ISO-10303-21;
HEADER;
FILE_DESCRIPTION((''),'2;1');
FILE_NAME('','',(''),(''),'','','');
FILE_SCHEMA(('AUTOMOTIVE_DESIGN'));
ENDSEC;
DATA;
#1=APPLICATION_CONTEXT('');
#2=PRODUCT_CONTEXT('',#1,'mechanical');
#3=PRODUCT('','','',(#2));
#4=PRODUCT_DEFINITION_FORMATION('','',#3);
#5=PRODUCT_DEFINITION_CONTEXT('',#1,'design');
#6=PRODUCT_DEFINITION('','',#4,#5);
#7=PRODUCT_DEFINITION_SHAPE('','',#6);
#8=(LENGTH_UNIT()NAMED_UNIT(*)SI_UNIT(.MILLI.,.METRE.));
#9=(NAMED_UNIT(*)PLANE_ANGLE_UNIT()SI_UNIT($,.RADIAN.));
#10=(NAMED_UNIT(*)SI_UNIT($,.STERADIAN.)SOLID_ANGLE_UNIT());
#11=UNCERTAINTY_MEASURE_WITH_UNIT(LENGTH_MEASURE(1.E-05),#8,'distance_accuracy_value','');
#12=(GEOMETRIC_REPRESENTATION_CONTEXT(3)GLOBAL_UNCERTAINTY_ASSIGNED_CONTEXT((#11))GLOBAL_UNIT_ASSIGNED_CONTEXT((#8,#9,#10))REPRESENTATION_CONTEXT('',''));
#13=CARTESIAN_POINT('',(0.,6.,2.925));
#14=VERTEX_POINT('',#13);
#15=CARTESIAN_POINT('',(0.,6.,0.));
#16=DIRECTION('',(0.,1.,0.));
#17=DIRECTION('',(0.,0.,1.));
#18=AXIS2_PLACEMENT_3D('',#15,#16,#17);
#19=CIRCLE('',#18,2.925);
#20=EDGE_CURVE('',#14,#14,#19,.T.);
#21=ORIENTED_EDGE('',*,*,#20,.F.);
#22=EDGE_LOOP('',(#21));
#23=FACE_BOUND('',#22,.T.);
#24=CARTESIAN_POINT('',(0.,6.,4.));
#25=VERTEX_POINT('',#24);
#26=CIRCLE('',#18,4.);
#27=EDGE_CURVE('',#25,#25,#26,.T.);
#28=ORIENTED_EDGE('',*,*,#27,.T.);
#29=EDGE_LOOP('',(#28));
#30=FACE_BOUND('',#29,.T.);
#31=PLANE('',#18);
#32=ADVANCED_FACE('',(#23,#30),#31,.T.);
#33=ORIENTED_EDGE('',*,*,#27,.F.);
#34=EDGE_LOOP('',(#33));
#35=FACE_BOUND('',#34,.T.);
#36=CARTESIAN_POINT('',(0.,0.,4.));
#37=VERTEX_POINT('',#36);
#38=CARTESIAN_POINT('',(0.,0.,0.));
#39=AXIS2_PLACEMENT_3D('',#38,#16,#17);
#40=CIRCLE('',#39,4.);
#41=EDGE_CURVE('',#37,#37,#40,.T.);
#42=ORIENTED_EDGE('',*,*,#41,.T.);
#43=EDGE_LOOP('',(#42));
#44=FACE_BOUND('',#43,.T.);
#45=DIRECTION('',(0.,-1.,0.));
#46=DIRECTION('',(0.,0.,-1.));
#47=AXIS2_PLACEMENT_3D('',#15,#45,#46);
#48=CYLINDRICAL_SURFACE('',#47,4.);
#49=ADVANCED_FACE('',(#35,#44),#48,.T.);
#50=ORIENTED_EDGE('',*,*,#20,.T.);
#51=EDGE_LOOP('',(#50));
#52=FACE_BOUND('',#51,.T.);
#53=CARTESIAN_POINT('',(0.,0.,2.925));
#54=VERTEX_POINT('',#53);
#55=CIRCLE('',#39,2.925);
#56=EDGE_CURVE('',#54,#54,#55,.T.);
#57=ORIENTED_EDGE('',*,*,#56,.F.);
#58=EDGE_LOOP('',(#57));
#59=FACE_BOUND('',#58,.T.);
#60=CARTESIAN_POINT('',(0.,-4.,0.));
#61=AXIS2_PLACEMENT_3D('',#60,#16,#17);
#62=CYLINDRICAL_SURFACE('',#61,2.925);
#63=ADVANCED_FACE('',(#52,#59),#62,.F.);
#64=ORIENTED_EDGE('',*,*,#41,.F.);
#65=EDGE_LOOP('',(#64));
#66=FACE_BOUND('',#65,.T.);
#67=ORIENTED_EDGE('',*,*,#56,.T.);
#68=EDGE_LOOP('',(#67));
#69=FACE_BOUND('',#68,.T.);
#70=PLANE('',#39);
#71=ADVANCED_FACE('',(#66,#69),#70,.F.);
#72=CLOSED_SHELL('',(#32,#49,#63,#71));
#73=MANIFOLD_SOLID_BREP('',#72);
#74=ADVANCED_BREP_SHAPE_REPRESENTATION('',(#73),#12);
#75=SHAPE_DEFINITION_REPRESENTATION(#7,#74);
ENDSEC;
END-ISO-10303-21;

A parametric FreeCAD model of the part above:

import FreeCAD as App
import Part
import Sketcher

doc = App.newDocument("Part")
body = doc.addObject("PartDesign::Body", "Body")

sketch1 = body.newObject("Sketcher::SketchObject", "Sketch")
sketch1.AttachmentSupport = (doc.getObject("XZ_Plane"), [""])
sketch1.MapMode = "FlatFace"
sketch1.addGeometry(Part.Circle(App.Vector(0, 0, 0), App.Vector(0, 0, 1), 4), False)
sketch1.addConstraint(Sketcher.Constraint("Coincident", 0, 3, -1, 1))
sketch1.addConstraint(Sketcher.Constraint("Diameter", 0, 8.0))
pad1 = body.newObject("PartDesign::Pad", "Pad")
pad1.Profile = sketch1
pad1.Length = 6
pad1.Reversed = True

sketch2 = body.newObject("Sketcher::SketchObject", "Sketch001")
sketch2.AttachmentSupport = (doc.getObject("XZ_Plane"), [""])
sketch2.MapMode = "FlatFace"
sketch2.AttachmentOffset = App.Placement(App.Vector(0, 0, -6), App.Rotation())
sketch2.addGeometry(Part.Circle(App.Vector(0, 0, 0), App.Vector(0, 0, 1), 2.9), False)
sketch2.addConstraint(Sketcher.Constraint("Coincident", 0, 3, -1, 1))
sketch2.addConstraint(Sketcher.Constraint("Diameter", 0, 5.85))
pocket1 = body.newObject("PartDesign::Pocket", "Pocket")
pocket1.Profile = sketch2
pocket1.Length = 10
pocket1.Reversed = True

doc.recompute()
